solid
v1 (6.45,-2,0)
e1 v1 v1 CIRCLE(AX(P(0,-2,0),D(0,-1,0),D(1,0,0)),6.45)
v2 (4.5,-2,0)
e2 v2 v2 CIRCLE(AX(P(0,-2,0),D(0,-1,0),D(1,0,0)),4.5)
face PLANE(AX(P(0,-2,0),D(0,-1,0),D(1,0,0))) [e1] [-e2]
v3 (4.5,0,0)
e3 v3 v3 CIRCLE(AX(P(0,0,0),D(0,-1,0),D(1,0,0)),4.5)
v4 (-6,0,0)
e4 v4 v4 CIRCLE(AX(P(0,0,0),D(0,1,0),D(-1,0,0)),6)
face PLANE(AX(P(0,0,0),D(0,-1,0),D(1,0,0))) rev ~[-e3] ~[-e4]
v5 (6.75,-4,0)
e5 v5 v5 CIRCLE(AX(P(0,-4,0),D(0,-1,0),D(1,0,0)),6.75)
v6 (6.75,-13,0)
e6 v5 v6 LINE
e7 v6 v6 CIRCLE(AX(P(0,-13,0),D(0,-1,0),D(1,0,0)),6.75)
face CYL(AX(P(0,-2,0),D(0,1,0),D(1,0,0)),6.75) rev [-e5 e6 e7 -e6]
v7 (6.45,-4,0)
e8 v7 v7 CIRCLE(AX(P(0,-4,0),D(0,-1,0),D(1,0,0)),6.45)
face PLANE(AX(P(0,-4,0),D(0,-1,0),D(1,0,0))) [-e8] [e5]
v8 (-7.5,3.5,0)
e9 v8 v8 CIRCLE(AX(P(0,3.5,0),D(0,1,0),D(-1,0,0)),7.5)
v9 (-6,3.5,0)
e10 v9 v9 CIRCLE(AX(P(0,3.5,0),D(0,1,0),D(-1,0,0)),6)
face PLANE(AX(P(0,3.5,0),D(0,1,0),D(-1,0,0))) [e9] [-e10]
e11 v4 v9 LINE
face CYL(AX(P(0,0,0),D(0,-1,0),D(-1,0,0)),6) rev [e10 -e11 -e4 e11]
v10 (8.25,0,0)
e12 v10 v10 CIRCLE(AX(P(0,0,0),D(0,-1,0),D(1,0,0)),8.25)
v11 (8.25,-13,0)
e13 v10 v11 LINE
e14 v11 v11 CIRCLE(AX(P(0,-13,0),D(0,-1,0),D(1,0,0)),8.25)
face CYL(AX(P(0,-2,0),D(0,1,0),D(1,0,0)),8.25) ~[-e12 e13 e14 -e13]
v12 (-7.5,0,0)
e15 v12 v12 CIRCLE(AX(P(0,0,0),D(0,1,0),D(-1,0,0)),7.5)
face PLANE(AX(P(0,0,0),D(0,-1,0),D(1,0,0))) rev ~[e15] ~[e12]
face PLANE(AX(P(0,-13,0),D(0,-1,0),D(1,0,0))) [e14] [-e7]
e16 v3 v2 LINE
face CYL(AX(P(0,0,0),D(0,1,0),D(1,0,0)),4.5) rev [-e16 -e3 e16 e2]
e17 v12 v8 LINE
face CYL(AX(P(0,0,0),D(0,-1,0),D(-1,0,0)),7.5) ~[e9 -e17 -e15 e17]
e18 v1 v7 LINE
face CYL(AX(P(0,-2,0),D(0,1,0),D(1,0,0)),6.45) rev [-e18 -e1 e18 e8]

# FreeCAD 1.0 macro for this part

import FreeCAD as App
import Part
import Sketcher
from FreeCAD import Vector

doc = App.newDocument("Part")
body = doc.addObject("PartDesign::Body", "Body")

# Sketch on XZ plane
sketch1 = doc.addObject("Sketcher::SketchObject", "Sketch")
body.addObject(sketch1)
sketch1.AttachmentSupport = (doc.XZ_Plane, [""])
sketch1.MapMode = "FlatFace"
sketch1.addGeometry([
    Part.Circle(Vector(0, 0, 0), Vector(0, 0, 1), 7.5),
    Part.Circle(Vector(0, 0, 0), Vector(0, 0, 1), 6),
], False)
sketch1.addConstraint([
    Sketcher.Constraint("Coincident", 0, 3, -1, 1),
    Sketcher.Constraint("Coincident", 1, 3, -1, 1),
    Sketcher.Constraint("Diameter", 0, 15.0),
    Sketcher.Constraint("Diameter", 1, 12.0),
])
pad1 = doc.addObject("PartDesign::Pad", "Pad")
body.addObject(pad1)
pad1.Profile = sketch1
pad1.Length = 3.5
pad1.Reversed = True

# Sketch on XZ plane
sketch2 = doc.addObject("Sketcher::SketchObject", "Sketch001")
body.addObject(sketch2)
sketch2.AttachmentSupport = (doc.XZ_Plane, [""])
sketch2.MapMode = "FlatFace"
sketch2.addGeometry([
    Part.Circle(Vector(0, 0, 0), Vector(0, 0, 1), 8.25),
    Part.Circle(Vector(0, 0, 0), Vector(0, 0, 1), 4.5),
], False)
sketch2.addConstraint([
    Sketcher.Constraint("Coincident", 0, 3, -1, 1),
    Sketcher.Constraint("Coincident", 1, 3, -1, 1),
    Sketcher.Constraint("Diameter", 1, 9.0),
    Sketcher.Constraint("Diameter", 0, 16.5),
])
pad2 = doc.addObject("PartDesign::Pad", "Pad001")
body.addObject(pad2)
pad2.Profile = sketch2
pad2.Length = 2

# Sketch on XZ plane
sketch3 = doc.addObject("Sketcher::SketchObject", "Sketch002")
body.addObject(sketch3)
sketch3.AttachmentSupport = (doc.XZ_Plane, [""])
sketch3.MapMode = "FlatFace"
sketch3.AttachmentOffset = App.Placement(Vector(0, 0, 2), App.Rotation())
sketch3.addGeometry([
    Part.Circle(Vector(0, 0, 0), Vector(0, 0, 1), 8.25),
    Part.Circle(Vector(0, 0, 0), Vector(0, 0, 1), 6.75),
], False)
sketch3.addConstraint([
    Sketcher.Constraint("Coincident", 0, 3, -1, 1),
    Sketcher.Constraint("Coincident", 1, 3, -1, 1),
    Sketcher.Constraint("Diameter", 0, 16.5),
    Sketcher.Constraint("Diameter", 1, 13.5),
])
pad3 = doc.addObject("PartDesign::Pad", "Pad002")
body.addObject(pad3)
pad3.Profile = sketch3
pad3.Length = 11

# Sketch on XZ plane
sketch4 = doc.addObject("Sketcher::SketchObject", "Sketch003")
body.addObject(sketch4)
sketch4.AttachmentSupport = (doc.XZ_Plane, [""])
sketch4.MapMode = "FlatFace"
sketch4.AttachmentOffset = App.Placement(Vector(0, 0, 2), App.Rotation())
sketch4.addGeometry([
    Part.Circle(Vector(0, 0, 0), Vector(0, 0, 1), 6.75),
    Part.Circle(Vector(0, 0, 0), Vector(0, 0, 1), 6.45),
], False)
sketch4.addConstraint([
    Sketcher.Constraint("Coincident", 0, 3, -1, 1),
    Sketcher.Constraint("Coincident", 1, 3, -1, 1),
    Sketcher.Constraint("Diameter", 0, 13.5),
    Sketcher.Constraint("Diameter", 1, 12.9),
])
pad4 = doc.addObject("PartDesign::Pad", "Pad003")
body.addObject(pad4)
pad4.Profile = sketch4
pad4.Length = 2

doc.recompute()
